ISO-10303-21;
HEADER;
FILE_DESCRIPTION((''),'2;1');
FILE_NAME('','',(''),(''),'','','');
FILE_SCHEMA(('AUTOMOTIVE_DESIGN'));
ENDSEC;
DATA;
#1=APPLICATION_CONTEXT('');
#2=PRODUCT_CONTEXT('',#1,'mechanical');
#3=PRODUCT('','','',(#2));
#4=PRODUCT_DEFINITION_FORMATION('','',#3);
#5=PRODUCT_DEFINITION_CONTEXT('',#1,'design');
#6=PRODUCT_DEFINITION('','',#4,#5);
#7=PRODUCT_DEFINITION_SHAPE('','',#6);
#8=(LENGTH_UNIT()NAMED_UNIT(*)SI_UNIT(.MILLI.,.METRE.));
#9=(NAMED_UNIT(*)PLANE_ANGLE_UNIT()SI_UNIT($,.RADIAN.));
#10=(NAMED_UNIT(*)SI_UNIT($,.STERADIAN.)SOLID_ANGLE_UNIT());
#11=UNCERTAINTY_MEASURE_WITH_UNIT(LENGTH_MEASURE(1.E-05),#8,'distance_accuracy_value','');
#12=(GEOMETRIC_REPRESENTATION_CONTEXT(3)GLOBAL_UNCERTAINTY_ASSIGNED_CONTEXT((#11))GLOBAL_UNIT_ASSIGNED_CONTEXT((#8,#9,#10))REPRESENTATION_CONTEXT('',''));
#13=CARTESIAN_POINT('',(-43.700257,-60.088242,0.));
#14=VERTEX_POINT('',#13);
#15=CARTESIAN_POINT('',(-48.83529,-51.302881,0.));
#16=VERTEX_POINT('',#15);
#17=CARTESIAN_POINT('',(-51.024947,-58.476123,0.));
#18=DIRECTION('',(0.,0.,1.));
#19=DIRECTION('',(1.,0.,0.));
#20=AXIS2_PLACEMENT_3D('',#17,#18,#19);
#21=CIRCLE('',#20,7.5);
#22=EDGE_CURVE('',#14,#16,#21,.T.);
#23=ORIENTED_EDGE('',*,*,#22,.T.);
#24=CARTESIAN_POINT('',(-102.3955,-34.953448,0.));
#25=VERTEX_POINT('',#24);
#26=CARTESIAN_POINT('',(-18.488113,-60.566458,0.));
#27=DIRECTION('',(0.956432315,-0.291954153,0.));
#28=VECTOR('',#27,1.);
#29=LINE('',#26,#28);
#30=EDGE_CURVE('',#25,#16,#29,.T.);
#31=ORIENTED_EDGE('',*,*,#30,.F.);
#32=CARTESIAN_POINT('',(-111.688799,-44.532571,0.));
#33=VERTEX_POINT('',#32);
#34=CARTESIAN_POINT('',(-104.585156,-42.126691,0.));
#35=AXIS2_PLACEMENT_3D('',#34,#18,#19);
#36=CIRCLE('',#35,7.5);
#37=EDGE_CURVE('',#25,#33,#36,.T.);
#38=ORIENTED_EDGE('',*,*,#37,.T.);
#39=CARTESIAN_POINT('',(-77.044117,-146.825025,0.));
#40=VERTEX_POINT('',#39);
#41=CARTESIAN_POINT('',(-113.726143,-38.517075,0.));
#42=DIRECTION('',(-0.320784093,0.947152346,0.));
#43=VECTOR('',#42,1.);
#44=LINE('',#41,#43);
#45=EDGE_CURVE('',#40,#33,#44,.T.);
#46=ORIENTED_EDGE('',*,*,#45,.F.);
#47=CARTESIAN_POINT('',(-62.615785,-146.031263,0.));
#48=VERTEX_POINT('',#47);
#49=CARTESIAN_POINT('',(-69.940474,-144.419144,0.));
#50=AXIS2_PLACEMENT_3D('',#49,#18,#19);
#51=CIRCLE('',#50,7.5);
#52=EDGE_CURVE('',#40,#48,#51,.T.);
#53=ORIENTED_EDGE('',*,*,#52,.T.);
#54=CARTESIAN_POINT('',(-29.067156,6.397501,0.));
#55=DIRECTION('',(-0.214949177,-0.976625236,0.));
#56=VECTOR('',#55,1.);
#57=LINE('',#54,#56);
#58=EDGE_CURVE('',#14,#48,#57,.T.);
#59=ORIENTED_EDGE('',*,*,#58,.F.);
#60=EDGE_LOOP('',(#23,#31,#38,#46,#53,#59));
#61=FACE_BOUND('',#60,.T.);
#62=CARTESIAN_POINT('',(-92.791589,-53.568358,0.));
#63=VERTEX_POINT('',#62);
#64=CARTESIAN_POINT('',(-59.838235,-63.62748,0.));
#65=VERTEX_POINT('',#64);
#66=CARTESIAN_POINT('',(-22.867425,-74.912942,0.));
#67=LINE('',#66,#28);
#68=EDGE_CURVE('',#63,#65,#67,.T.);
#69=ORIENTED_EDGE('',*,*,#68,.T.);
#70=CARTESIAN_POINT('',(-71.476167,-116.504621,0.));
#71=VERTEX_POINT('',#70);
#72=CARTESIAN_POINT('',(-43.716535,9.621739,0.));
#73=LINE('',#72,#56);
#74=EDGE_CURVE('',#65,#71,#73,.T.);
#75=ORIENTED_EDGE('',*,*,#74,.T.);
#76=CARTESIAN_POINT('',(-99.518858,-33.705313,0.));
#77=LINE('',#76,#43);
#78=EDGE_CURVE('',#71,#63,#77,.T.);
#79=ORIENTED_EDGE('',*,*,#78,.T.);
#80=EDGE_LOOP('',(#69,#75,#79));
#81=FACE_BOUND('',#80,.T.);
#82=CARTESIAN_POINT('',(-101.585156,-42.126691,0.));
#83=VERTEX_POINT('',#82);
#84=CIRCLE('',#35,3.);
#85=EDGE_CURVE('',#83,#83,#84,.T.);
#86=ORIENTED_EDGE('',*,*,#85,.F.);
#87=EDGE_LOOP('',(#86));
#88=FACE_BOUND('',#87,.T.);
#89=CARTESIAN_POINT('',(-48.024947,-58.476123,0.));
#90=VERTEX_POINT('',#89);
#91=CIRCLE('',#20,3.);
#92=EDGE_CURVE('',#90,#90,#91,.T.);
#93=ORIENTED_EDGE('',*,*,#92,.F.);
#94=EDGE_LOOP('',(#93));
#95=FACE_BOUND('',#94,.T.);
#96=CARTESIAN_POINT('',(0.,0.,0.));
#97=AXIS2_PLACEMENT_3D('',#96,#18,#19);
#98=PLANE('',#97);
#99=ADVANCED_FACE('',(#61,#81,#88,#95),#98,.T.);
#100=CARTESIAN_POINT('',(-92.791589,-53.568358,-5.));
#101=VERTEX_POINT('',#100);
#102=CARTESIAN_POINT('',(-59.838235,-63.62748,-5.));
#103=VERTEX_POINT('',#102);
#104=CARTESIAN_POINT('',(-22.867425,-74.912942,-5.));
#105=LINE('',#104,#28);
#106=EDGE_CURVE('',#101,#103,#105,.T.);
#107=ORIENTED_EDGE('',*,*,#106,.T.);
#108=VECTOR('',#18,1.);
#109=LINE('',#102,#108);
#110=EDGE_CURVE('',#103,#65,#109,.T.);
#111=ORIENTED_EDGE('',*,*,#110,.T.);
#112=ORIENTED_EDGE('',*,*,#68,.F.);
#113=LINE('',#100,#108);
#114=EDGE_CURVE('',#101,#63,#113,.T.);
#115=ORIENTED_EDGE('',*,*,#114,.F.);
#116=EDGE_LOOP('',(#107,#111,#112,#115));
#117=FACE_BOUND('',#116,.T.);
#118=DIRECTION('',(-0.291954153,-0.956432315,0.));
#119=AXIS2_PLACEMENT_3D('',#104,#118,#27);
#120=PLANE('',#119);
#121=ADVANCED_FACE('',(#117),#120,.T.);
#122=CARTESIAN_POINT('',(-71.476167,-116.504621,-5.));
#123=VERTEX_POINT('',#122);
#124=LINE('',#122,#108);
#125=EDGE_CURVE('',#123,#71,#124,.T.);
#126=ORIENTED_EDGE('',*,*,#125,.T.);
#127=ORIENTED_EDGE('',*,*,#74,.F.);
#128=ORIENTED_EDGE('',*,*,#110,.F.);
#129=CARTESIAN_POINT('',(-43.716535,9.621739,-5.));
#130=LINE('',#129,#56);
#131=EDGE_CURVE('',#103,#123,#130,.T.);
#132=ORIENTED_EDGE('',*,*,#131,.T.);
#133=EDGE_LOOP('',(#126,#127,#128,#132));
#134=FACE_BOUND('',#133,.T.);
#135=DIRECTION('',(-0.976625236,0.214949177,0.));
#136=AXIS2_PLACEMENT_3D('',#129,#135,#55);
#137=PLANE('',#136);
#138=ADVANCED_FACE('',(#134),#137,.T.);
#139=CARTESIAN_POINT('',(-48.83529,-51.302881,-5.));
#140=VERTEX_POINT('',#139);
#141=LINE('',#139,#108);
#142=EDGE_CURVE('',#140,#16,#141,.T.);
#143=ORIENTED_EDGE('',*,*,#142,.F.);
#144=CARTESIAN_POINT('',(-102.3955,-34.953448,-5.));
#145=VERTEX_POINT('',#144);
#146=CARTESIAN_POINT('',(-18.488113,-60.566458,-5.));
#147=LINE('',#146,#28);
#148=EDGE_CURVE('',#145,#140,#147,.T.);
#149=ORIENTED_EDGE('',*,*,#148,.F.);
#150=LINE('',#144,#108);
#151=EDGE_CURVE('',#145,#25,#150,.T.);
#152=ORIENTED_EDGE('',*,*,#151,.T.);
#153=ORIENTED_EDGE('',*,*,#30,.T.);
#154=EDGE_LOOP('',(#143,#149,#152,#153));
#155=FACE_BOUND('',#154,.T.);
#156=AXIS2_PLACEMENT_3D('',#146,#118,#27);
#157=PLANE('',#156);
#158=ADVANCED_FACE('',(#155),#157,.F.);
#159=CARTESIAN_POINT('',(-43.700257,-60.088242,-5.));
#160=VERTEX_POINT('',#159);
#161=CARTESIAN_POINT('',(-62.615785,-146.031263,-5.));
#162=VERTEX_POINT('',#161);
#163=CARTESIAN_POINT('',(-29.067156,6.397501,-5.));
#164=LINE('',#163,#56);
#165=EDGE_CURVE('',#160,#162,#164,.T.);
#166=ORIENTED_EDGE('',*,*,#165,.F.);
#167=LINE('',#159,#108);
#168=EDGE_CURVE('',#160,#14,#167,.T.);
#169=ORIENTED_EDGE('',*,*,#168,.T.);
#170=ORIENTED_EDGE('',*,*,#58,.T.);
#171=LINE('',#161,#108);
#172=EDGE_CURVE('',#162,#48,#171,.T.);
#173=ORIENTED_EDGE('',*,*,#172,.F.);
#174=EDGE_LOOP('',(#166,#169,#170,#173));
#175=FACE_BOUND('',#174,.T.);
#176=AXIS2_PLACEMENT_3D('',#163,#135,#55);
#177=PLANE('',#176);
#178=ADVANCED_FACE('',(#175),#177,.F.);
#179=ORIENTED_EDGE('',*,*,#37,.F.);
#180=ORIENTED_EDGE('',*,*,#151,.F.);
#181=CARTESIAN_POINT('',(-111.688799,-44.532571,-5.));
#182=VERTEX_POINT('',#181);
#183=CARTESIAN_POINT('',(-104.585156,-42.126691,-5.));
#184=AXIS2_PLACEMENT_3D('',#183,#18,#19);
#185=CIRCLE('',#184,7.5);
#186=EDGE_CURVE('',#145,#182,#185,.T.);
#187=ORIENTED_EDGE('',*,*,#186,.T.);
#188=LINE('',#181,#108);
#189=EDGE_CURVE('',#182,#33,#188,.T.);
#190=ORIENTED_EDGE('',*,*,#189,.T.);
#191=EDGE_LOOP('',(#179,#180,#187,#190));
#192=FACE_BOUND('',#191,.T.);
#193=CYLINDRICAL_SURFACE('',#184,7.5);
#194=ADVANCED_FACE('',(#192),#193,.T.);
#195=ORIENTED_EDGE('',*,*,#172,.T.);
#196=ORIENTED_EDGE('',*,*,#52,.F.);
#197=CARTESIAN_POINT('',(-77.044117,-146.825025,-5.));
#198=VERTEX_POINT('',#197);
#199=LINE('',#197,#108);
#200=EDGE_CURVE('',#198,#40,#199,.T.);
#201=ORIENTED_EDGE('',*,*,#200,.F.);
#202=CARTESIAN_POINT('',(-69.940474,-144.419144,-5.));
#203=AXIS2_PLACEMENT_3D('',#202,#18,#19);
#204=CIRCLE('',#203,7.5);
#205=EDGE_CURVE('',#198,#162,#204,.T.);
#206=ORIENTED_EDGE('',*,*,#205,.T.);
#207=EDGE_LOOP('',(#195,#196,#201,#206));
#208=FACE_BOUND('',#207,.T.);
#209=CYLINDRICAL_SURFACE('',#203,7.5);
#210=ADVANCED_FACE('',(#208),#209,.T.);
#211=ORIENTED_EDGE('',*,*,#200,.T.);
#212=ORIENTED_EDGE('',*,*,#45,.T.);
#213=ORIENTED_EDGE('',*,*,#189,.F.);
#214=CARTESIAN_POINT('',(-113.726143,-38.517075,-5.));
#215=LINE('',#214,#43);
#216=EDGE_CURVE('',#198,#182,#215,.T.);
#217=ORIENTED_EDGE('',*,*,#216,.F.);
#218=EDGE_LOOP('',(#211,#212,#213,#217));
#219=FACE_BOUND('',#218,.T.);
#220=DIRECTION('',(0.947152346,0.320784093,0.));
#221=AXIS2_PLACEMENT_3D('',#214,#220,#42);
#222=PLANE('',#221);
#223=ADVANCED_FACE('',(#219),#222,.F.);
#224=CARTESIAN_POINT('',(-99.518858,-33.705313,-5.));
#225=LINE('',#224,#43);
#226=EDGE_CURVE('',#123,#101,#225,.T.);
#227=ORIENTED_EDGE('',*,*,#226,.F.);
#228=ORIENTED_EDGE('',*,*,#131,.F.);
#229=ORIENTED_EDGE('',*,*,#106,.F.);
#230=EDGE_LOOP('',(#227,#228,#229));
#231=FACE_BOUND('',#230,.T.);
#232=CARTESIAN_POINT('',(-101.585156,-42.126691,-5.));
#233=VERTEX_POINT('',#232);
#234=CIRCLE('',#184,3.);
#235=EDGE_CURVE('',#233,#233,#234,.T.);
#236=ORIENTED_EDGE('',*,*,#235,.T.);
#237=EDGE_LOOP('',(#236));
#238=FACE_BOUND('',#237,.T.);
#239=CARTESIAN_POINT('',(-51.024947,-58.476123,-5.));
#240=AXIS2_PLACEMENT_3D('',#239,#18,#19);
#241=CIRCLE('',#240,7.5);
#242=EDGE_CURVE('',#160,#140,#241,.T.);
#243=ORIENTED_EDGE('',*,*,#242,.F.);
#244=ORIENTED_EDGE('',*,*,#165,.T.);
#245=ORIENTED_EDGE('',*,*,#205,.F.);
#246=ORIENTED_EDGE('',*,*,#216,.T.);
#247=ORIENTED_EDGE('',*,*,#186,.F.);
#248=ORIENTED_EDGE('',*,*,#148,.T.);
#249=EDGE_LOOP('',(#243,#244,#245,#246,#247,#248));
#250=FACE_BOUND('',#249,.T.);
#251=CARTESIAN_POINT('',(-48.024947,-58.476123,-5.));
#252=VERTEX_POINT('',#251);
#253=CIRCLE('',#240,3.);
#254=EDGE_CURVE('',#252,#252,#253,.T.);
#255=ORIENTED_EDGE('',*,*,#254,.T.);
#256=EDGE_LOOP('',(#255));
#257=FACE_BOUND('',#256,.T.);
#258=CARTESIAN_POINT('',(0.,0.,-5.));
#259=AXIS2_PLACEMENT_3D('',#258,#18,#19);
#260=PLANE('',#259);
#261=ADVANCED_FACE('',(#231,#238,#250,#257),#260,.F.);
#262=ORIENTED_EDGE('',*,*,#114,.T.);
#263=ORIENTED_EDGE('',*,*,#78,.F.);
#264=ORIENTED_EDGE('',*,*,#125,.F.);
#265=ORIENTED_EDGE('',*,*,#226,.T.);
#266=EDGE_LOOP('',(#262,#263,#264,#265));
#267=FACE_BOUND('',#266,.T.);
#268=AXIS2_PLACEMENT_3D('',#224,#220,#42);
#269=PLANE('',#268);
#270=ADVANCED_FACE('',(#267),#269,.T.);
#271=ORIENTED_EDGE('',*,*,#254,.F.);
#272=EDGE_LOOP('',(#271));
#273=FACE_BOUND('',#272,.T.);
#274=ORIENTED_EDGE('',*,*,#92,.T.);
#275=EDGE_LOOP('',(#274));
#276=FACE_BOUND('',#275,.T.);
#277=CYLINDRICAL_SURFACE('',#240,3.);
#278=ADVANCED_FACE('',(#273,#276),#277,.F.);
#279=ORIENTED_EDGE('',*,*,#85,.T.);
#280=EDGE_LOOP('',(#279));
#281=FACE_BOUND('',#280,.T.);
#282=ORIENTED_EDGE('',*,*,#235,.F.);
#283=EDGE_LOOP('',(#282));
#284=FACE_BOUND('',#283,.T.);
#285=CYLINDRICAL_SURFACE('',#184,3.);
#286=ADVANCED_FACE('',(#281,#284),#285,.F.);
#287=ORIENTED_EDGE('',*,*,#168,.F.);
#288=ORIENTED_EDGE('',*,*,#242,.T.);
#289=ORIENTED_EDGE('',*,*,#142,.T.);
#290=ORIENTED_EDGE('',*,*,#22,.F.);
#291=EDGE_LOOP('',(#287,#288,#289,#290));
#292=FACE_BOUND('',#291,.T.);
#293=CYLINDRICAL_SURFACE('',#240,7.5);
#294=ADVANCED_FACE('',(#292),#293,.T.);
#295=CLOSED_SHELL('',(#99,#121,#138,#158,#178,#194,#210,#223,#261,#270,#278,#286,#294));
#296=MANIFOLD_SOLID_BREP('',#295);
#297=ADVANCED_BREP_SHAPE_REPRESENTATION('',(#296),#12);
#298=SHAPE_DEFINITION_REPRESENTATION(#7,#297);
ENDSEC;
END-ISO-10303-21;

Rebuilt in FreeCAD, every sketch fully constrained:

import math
import FreeCAD as App
import Part
import Sketcher
from FreeCAD import Vector
Q = App.Units.Quantity

doc = App.newDocument("Part")
body = doc.addObject("PartDesign::Body", "Body")

# Sketch on XY plane
sketch1 = doc.addObject("Sketcher::SketchObject", "Sketch")
body.addObject(sketch1)
sketch1.AttachmentSupport = (doc.XY_Plane, [""])
sketch1.MapMode = "FlatFace"
sketch1.addGeometry([
    Part.LineSegment(Vector(-111.688799, -44.532571, 0), Vector(-77.044117, -146.825025, 0)),  # 0
    Part.ArcOfCircle(Part.Circle(Vector(-69.940474, -144.419144, 0), Vector(0, 0, 1), 7.5), math.radians(-161.28965), math.radians(-12.412546)),  # 1
    Part.LineSegment(Vector(-62.615785, -146.031263, 0), Vector(-43.700257, -60.088242, 0)),  # 2
    Part.ArcOfCircle(Part.Circle(Vector(-51.024947, -58.476123, 0), Vector(0, 0, 1), 7.5), math.radians(-12.412546), math.radians(73.025015)),  # 3
    Part.LineSegment(Vector(-48.83529, -51.302881, 0), Vector(-102.3955, -34.953448, 0)),  # 4
    Part.ArcOfCircle(Part.Circle(Vector(-104.585156, -42.126691, 0), Vector(0, 0, 1), 7.5), math.radians(73.025015), math.radians(198.71035)),  # 5
    Part.LineSegment(Vector(-92.791589, -53.568359, 0), Vector(-59.838235, -63.62748, 0)),  # 6
    Part.LineSegment(Vector(-59.838235, -63.62748, 0), Vector(-71.476167, -116.504621, 0)),  # 7
    Part.LineSegment(Vector(-71.476167, -116.504621, 0), Vector(-92.791589, -53.568359, 0)),  # 8
], False)
sketch1.addConstraint([
    Sketcher.Constraint("Tangent", 0, 2, 1, 1),
    Sketcher.Constraint("Tangent", 1, 2, 2, 1),
    Sketcher.Constraint("Tangent", 2, 2, 3, 1),
    Sketcher.Constraint("Tangent", 3, 2, 4, 1),
    Sketcher.Constraint("Tangent", 4, 2, 5, 1),
    Sketcher.Constraint("Tangent", 5, 2, 0, 1),
    Sketcher.Constraint("Coincident", 6, 2, 7, 1),
    Sketcher.Constraint("Coincident", 7, 2, 8, 1),
    Sketcher.Constraint("Coincident", 8, 2, 6, 1),
    Sketcher.Constraint("Equal", 1, 3),
    Sketcher.Constraint("Equal", 3, 5),
    Sketcher.Constraint("Parallel", 4, 6),
    Sketcher.Constraint("Parallel", 2, 7),
    Sketcher.Constraint("Parallel", 0, 8),
    Sketcher.Constraint("Radius", 1, Q("7.5 mm")),
    Sketcher.Constraint("Distance", 0, Q("108 mm")),
    Sketcher.Constraint("Distance", 2, Q("88 mm")),
    Sketcher.Constraint("Distance", 4, Q("56 mm")),
    Sketcher.Constraint("DistanceX", 4, 2, -1, 1, Q("102.3955 mm")),
    Sketcher.Constraint("DistanceX", 5, 2, -1, 1, Q("111.688799 mm")),
    Sketcher.Constraint("DistanceY", 6, 2, 3, 2, Q("12.324599 mm")),
    Sketcher.Constraint("DistanceY", 5, 3, -1, 1, Q("42.126691 mm")),
    Sketcher.Constraint("DistanceY", 7, 2, -1, 1, Q("116.504621 mm")),
    Sketcher.Constraint("DistanceX", 8, 2, -1, 1, Q("92.791589 mm")),
])
pad1 = doc.addObject("PartDesign::Pad", "Pad")
body.addObject(pad1)
pad1.Profile = sketch1
pad1.Length = 5
pad1.Reversed = True

# Sketch on XY plane
sketch2 = doc.addObject("Sketcher::SketchObject", "Sketch001")
body.addObject(sketch2)
sketch2.AttachmentSupport = (doc.XY_Plane, [""])
sketch2.MapMode = "FlatFace"
sketch2.addGeometry([
    Part.Circle(Vector(-51.024947, -58.476123, 0), Vector(0, 0, 1), 3),
    Part.Circle(Vector(-104.585156, -42.126691, 0), Vector(0, 0, 1), 3),
], False)
sketch2.addConstraint([
    Sketcher.Constraint("Equal", 0, 1),
    Sketcher.Constraint("Diameter", 0, Q("6 mm")),
    Sketcher.Constraint("DistanceY", 1, 3, -1, 1, Q("42.126691 mm")),
    Sketcher.Constraint("DistanceX", 1, 3, 0, 3, Q("53.56021 mm")),
    Sketcher.Constraint("DistanceX", 0, 3, -1, 1, Q("51.024947 mm")),
    Sketcher.Constraint("DistanceY", 0, 3, -1, 1, Q("58.476123 mm")),
])
pocket1 = doc.addObject("PartDesign::Pocket", "Pocket")
body.addObject(pocket1)
pocket1.Profile = sketch2
pocket1.Type = "ThroughAll"
pocket1.Midplane = True

doc.recompute()
